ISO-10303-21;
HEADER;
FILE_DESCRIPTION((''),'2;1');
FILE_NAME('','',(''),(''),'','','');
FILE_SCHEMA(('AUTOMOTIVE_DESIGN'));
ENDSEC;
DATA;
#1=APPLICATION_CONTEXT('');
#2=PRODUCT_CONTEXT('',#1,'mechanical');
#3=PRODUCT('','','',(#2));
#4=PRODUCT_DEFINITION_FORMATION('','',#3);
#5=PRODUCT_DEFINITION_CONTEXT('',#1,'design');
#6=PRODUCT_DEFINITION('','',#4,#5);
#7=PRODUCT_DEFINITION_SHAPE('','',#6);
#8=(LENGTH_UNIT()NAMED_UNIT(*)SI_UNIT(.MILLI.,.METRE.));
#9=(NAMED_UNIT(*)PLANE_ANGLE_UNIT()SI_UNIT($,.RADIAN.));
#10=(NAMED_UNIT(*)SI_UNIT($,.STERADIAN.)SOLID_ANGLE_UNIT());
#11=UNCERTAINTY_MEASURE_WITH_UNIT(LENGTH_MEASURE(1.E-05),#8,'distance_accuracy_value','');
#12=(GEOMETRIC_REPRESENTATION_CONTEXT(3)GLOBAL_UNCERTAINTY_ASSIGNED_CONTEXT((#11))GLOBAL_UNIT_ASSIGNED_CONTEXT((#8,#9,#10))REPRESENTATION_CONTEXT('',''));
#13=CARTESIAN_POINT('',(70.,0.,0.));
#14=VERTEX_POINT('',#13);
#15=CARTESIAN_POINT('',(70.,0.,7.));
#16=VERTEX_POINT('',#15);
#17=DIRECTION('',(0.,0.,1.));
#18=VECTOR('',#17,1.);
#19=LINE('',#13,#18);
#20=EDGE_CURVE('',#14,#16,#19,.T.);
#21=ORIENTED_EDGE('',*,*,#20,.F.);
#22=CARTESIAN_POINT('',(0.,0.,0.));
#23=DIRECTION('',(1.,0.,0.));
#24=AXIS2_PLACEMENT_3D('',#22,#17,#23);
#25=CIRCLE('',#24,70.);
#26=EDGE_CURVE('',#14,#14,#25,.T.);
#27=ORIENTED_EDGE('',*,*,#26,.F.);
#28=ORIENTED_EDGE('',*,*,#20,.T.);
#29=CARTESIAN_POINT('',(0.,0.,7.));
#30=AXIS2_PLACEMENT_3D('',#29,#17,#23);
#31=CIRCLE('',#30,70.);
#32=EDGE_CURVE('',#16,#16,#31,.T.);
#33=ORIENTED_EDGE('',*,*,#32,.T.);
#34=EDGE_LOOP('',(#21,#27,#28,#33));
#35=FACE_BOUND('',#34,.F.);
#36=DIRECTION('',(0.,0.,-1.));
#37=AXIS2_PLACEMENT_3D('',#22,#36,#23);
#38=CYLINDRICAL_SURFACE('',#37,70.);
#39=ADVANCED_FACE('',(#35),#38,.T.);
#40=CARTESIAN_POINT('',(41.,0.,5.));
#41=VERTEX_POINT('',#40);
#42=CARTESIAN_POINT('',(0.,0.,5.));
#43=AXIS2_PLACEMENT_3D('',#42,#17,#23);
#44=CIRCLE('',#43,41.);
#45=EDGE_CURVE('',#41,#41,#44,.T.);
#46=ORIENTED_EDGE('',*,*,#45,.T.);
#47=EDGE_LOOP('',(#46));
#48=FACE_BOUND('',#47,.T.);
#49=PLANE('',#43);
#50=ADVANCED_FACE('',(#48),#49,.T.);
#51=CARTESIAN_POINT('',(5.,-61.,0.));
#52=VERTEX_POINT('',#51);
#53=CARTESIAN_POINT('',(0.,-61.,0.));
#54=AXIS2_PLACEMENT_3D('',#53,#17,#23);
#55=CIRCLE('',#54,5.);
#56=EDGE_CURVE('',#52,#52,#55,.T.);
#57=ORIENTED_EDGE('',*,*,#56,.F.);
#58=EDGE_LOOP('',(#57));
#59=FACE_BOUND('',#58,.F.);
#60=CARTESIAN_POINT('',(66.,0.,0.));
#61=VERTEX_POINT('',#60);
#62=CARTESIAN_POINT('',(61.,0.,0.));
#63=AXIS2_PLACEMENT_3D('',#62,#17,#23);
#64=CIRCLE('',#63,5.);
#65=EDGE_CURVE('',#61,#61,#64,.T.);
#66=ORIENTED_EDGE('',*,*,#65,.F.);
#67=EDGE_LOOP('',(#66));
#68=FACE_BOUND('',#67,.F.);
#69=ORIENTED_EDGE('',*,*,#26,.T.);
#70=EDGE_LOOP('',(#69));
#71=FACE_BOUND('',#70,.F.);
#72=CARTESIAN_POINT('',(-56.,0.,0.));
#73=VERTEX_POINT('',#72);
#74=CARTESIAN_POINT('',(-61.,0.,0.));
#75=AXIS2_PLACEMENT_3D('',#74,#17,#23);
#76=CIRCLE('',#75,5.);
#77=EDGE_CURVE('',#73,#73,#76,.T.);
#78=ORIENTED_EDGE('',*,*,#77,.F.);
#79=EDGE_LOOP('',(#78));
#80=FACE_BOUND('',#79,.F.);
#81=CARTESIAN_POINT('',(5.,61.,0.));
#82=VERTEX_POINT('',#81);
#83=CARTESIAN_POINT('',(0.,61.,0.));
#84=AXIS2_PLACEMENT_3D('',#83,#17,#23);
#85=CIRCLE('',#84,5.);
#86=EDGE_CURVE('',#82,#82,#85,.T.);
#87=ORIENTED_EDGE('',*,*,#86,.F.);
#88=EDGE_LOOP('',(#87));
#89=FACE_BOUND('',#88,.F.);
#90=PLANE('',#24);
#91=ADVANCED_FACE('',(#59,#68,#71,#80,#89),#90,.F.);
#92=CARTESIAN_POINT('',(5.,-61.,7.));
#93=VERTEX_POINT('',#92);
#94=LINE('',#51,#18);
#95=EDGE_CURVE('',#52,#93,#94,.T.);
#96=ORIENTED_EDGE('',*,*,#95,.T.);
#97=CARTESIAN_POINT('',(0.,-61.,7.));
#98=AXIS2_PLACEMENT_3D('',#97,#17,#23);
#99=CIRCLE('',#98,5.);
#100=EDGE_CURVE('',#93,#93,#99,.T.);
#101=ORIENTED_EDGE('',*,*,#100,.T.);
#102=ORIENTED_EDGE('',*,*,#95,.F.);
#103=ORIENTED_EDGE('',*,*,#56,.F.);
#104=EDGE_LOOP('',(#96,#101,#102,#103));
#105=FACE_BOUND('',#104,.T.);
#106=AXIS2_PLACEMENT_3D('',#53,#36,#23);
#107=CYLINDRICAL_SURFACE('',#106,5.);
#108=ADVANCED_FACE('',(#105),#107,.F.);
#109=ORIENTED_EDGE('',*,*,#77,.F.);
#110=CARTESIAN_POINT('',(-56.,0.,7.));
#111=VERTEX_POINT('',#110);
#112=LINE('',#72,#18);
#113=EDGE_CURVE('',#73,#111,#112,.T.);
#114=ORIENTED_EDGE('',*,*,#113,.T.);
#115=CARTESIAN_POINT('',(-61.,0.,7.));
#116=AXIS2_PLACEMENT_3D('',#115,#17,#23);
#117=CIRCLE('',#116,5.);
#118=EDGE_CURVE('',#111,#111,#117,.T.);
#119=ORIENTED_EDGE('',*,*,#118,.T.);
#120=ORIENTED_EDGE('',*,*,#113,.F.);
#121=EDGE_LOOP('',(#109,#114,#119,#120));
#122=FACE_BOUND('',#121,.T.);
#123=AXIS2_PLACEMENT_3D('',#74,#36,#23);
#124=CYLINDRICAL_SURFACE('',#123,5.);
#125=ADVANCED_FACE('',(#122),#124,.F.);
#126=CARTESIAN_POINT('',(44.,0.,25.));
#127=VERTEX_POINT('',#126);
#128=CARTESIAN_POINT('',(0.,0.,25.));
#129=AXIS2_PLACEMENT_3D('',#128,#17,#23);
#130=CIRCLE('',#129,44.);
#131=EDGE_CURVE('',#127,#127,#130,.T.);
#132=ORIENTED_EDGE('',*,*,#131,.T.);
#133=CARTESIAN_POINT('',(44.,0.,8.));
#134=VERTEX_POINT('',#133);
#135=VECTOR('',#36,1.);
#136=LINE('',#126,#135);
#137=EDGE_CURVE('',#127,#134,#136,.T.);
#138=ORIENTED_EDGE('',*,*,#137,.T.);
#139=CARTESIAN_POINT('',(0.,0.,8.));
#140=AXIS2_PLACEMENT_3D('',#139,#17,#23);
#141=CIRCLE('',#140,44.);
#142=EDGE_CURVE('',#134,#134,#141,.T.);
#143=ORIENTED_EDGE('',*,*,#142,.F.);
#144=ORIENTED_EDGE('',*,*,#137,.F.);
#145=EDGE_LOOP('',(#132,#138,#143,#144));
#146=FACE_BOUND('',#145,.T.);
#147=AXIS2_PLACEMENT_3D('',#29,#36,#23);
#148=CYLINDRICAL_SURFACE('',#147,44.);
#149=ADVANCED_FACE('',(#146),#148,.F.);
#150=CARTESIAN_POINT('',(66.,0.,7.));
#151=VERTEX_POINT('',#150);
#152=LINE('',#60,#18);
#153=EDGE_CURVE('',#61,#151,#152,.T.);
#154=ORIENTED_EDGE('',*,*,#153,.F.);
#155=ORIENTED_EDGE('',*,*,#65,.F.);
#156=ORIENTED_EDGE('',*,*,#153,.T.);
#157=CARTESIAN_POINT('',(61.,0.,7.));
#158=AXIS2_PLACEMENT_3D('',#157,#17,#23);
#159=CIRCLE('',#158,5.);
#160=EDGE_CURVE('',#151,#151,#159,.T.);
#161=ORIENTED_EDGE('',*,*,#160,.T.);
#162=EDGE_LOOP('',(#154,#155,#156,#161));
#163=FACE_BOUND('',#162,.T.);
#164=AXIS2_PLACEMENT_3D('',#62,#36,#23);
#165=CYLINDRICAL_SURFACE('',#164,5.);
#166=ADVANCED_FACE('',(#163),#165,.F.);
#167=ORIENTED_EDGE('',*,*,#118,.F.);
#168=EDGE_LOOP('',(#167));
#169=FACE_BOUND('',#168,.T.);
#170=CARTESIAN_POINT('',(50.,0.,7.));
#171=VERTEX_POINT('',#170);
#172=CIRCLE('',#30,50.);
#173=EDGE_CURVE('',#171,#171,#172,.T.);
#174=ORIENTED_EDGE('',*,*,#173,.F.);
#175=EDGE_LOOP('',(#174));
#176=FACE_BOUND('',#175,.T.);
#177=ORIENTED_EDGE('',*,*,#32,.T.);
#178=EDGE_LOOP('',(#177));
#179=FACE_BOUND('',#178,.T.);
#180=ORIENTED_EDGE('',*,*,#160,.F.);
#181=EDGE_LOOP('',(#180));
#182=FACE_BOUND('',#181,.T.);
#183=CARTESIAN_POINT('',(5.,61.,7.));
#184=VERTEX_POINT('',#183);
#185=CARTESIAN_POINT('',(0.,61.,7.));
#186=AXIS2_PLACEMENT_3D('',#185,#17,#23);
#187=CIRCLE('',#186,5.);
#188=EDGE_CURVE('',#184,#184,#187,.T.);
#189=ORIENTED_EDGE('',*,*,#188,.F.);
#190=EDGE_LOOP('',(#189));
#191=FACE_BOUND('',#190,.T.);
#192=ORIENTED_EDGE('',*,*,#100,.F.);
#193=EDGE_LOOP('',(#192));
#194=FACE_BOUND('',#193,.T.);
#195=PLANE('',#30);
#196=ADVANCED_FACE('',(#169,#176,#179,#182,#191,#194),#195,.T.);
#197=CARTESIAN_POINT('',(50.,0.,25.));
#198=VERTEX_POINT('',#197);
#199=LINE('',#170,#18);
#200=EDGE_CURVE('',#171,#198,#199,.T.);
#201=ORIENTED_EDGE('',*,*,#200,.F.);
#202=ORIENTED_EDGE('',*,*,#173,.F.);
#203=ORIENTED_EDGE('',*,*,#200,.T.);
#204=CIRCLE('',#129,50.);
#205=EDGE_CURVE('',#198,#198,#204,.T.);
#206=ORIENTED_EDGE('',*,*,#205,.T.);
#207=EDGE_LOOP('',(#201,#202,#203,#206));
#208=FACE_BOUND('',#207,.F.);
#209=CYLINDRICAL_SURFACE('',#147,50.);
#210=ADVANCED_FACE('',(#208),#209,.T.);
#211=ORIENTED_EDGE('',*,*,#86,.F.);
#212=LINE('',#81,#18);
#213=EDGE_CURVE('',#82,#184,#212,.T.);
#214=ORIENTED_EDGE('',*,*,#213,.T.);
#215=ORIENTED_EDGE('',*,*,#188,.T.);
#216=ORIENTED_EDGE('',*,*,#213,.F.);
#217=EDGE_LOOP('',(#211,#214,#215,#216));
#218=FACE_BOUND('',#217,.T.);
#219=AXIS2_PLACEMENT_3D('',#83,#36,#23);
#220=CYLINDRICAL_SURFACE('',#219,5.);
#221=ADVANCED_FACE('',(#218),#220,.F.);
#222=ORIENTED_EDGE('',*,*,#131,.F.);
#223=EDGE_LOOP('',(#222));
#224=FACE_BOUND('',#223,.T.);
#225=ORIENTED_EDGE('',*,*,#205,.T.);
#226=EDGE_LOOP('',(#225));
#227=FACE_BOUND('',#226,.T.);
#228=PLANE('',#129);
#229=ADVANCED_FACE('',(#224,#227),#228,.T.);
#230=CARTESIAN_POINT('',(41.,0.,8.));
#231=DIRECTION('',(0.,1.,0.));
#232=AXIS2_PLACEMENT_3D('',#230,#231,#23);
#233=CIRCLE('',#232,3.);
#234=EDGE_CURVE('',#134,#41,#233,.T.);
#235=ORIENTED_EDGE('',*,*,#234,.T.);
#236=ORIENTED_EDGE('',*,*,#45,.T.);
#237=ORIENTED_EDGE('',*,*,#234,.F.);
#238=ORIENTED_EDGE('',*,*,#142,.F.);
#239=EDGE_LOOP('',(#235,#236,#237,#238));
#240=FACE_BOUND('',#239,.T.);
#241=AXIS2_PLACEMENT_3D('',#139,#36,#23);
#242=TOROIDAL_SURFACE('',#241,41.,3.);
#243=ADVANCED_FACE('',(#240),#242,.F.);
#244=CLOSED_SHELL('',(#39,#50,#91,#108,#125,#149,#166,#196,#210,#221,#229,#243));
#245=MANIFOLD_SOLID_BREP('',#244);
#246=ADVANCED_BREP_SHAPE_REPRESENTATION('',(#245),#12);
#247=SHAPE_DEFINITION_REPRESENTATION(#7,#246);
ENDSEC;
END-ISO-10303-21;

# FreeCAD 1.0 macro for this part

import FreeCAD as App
import Part
import Sketcher

V = App.Vector


def edges_at(feature, points):
    """Names of the edges that pass closest to the given points."""
    edges = feature.Shape.Edges
    near = lambda p: min(range(len(edges)), key=lambda i: edges[i].distToShape(Part.Vertex(*p))[0])
    return sorted({f"Edge{near(p) + 1}" for p in points})

doc = App.newDocument("Part")
params = doc.addObject("Spreadsheet::Sheet", "Params")
for row, (alias, value) in enumerate([
    ("sketch1_diameter", "140 mm"),
    ("sketch1_diameter2", "10 mm"),
    ("pad1_length", "7 mm"),
    ("sketch2_diameter", "100 mm"),
    ("sketch2_diameter2", "88 mm"),
    ("pad2_length", "18 mm"),
    ("sketch3_diameter", "88 mm"),
    ("pocket1_length", "2 mm"),
    ("fillet_radius", "3 mm"),
], start=1):
    params.set(f"A{row}", alias)
    params.set(f"B{row}", "=" + value)
    params.setAlias(f"B{row}", alias)

body = doc.addObject("PartDesign::Body", "Body")

# Sketch on XY plane
sketch1 = doc.addObject("Sketcher::SketchObject", "Sketch")
body.addObject(sketch1)
sketch1.AttachmentSupport = (doc.XY_Plane, [""])
sketch1.MapMode = "FlatFace"
sketch1.addGeometry([
    Part.Circle(V(0, 0, 0), V(0, 0, 1), 70),  # 0
    Part.Circle(V(0, -61, 0), V(0, 0, 1), 5),  # 1
    Part.Circle(V(-61, 0, 0), V(0, 0, 1), 5),  # 2
    Part.Circle(V(61, 0, 0), V(0, 0, 1), 5),  # 3
    Part.Circle(V(0, 61, 0), V(0, 0, 1), 5),  # 4
], False)
sketch1.addConstraint([
    Sketcher.Constraint("Coincident", 0, 3, -1, 1),
    Sketcher.Constraint("Equal", 1, 2),
    Sketcher.Constraint("Equal", 2, 3),
    Sketcher.Constraint("Equal", 3, 4),
    Sketcher.Constraint("Symmetric", 2, 3, 3, 3, -1, 1),
    Sketcher.Constraint("Symmetric", 1, 3, 4, 3, -1, 1),
    Sketcher.Constraint("PointOnObject", 1, 3, -2),
    Sketcher.Constraint("PointOnObject", 2, 3, -1),
    Sketcher.Constraint("Diameter", 0, 140.0),
    Sketcher.Constraint("Diameter", 1, 10.0),
    Sketcher.Constraint("DistanceY", 1, 3, -1, 1, 61.0),
    Sketcher.Constraint("DistanceX", 2, 3, -1, 1, 61.0),
])
sketch1.setExpression("Constraints[8]", "Params.sketch1_diameter")
sketch1.setExpression("Constraints[9]", "Params.sketch1_diameter2")
pad1 = doc.addObject("PartDesign::Pad", "Pad")
body.addObject(pad1)
pad1.Profile = sketch1
pad1.setExpression("Length", "Params.pad1_length")

# Sketch on XY plane
sketch2 = doc.addObject("Sketcher::SketchObject", "Sketch001")
body.addObject(sketch2)
sketch2.AttachmentSupport = (doc.XY_Plane, [""])
sketch2.MapMode = "FlatFace"
sketch2.AttachmentOffset = App.Placement(V(0, 0, 7), App.Rotation())
sketch2.addGeometry([
    Part.Circle(V(0, 0, 0), V(0, 0, 1), 50),
    Part.Circle(V(0, 0, 0), V(0, 0, 1), 44),
], False)
sketch2.addConstraint([
    Sketcher.Constraint("Coincident", 0, 3, -1, 1),
    Sketcher.Constraint("Coincident", 1, 3, -1, 1),
    Sketcher.Constraint("Diameter", 0, 100.0),
    Sketcher.Constraint("Diameter", 1, 88.0),
])
sketch2.setExpression("Constraints[2]", "Params.sketch2_diameter")
sketch2.setExpression("Constraints[3]", "Params.sketch2_diameter2")
pad2 = doc.addObject("PartDesign::Pad", "Pad001")
body.addObject(pad2)
pad2.Profile = sketch2
pad2.setExpression("Length", "Params.pad2_length")

# Sketch on XY plane
sketch3 = doc.addObject("Sketcher::SketchObject", "Sketch002")
body.addObject(sketch3)
sketch3.AttachmentSupport = (doc.XY_Plane, [""])
sketch3.MapMode = "FlatFace"
sketch3.AttachmentOffset = App.Placement(V(0, 0, 7), App.Rotation())
sketch3.addGeometry(Part.Circle(V(0, 0, 0), V(0, 0, 1), 44), False)
sketch3.addConstraint([
    Sketcher.Constraint("Coincident", 0, 3, -1, 1),
    Sketcher.Constraint("Diameter", 0, 88.0),
])
sketch3.setExpression("Constraints[1]", "Params.sketch3_diameter")
pocket1 = doc.addObject("PartDesign::Pocket", "Pocket")
body.addObject(pocket1)
pocket1.Profile = sketch3
pocket1.setExpression("Length", "Params.pocket1_length")
doc.recompute()

fillet = doc.addObject("PartDesign::Fillet", "Fillet")
body.addObject(fillet)
fillet.Base = (pocket1, edges_at(pocket1, [(-44, 0, 5)]))
fillet.setExpression("Radius", "Params.fillet_radius")

doc.recompute()
